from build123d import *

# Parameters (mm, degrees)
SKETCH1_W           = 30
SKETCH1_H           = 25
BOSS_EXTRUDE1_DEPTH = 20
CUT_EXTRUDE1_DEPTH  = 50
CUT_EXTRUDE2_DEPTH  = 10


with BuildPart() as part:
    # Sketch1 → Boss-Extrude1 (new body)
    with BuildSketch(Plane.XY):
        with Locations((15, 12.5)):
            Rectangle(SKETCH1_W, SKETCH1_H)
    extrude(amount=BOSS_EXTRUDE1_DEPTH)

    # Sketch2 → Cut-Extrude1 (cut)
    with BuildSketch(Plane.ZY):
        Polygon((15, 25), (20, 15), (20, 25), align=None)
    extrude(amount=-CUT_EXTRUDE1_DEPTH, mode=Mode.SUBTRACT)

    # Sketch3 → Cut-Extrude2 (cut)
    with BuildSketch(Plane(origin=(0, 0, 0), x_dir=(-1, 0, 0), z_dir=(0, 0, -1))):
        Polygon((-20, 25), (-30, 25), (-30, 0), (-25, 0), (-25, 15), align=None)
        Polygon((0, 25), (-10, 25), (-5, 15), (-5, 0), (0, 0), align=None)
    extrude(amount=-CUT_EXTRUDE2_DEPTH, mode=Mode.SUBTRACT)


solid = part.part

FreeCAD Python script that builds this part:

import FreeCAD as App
import Part
import Sketcher
Q = App.Units.Quantity


def add_polygon(sketch, points):
    """Adds a closed chain of lines whose ends are joined by coincident constraints."""
    first, n = sketch.GeometryCount, len(points)
    for a, b in zip(points, points[1:] + points[:1]):
        sketch.addGeometry(Part.LineSegment(App.Vector(*a, 0), App.Vector(*b, 0)), False)
    for i in range(n):
        sketch.addConstraint(Sketcher.Constraint("Coincident", first + i, 2, first + (i + 1) % n, 1))

doc = App.newDocument("Part")
body = doc.addObject("PartDesign::Body", "Body")

# Sketch on XY plane
sketch1 = doc.addObject("Sketcher::SketchObject", "Sketch")
body.addObject(sketch1)
sketch1.AttachmentSupport = (doc.XY_Plane, [""])
sketch1.MapMode = "FlatFace"
add_polygon(sketch1, [(0, 25), (0, 0), (30, 0), (30, 25)])  # lines 0-3
sketch1.addConstraint([
    Sketcher.Constraint("Vertical", 0),
    Sketcher.Constraint("Horizontal", 1),
    Sketcher.Constraint("Vertical", 2),
    Sketcher.Constraint("Horizontal", 3),
    Sketcher.Constraint("Coincident", 0, 2, -1, 1),
    Sketcher.Constraint("DistanceX", 1, 1, 1, 2, Q("30 mm")),
    Sketcher.Constraint("DistanceY", 0, 2, 0, 1, Q("25 mm")),
])
pad1 = doc.addObject("PartDesign::Pad", "Pad")
body.addObject(pad1)
pad1.Profile = sketch1
pad1.Length = 20

# Sketch on YZ plane
sketch2 = doc.addObject("Sketcher::SketchObject", "Sketch001")
body.addObject(sketch2)
sketch2.AttachmentSupport = (doc.YZ_Plane, [""])
sketch2.MapMode = "FlatFace"
add_polygon(sketch2, [(25, 15), (15, 20), (25, 20)])  # lines 0-2
sketch2.addConstraint([
    Sketcher.Constraint("Horizontal", 1),
    Sketcher.Constraint("Vertical", 2),
    Sketcher.Constraint("DistanceX", 1, 1, 1, 2, Q("10 mm")),
    Sketcher.Constraint("DistanceY", 2, 2, 2, 1, Q("5 mm")),
    Sketcher.Constraint("DistanceX", -1, 1, 0, 2, Q("15 mm")),
    Sketcher.Constraint("DistanceY", -1, 1, 0, 2, Q("20 mm")),
])
pocket1 = doc.addObject("PartDesign::Pocket", "Pocket")
body.addObject(pocket1)
pocket1.Profile = sketch2
pocket1.Length = 50
pocket1.Reversed = True

# Sketch on XY plane
sketch3 = doc.addObject("Sketcher::SketchObject", "Sketch002")
body.addObject(sketch3)
sketch3.AttachmentSupport = (doc.XY_Plane, [""])
sketch3.MapMode = "FlatFace"
add_polygon(sketch3, [(20, 25), (30, 25), (30, 0), (25, 0), (25, 15)])  # lines 0-4
add_polygon(sketch3, [(0, 25), (10, 25), (5, 15), (5, 0), (0, 0)])  # lines 5-9
sketch3.addConstraint([
    Sketcher.Constraint("Horizontal", 0),
    Sketcher.Constraint("Vertical", 1),
    Sketcher.Constraint("Horizontal", 2),
    Sketcher.Constraint("Vertical", 3),
    Sketcher.Constraint("Horizontal", 5),
    Sketcher.Constraint("Vertical", 7),
    Sketcher.Constraint("Horizontal", 8),
    Sketcher.Constraint("Vertical", 9),
    Sketcher.Constraint("Coincident", 8, 2, -1, 1),
    Sketcher.Constraint("PointOnObject", 1, 2, -1),
    Sketcher.Constraint("Horizontal", 4, 2, 5, 2),
    Sketcher.Constraint("Horizontal", 3, 2, 6, 2),
    Sketcher.Constraint("Equal", 0, 5),
    Sketcher.Constraint("Equal", 2, 8),
    Sketcher.Constraint("DistanceX", 0, 1, 0, 2, Q("10 mm")),
    Sketcher.Constraint("DistanceX", 2, 2, 2, 1, Q("5 mm")),
    Sketcher.Constraint("DistanceY", 1, 2, 1, 1, Q("25 mm")),
    Sketcher.Constraint("DistanceY", 3, 1, 3, 2, Q("15 mm")),
    Sketcher.Constraint("DistanceX", -1, 1, 0, 2, Q("30 mm")),
])
pocket2 = doc.addObject("PartDesign::Pocket", "Pocket001")
body.addObject(pocket2)
pocket2.Profile = sketch3
pocket2.Length = 10
pocket2.Reversed = True

doc.recompute()
